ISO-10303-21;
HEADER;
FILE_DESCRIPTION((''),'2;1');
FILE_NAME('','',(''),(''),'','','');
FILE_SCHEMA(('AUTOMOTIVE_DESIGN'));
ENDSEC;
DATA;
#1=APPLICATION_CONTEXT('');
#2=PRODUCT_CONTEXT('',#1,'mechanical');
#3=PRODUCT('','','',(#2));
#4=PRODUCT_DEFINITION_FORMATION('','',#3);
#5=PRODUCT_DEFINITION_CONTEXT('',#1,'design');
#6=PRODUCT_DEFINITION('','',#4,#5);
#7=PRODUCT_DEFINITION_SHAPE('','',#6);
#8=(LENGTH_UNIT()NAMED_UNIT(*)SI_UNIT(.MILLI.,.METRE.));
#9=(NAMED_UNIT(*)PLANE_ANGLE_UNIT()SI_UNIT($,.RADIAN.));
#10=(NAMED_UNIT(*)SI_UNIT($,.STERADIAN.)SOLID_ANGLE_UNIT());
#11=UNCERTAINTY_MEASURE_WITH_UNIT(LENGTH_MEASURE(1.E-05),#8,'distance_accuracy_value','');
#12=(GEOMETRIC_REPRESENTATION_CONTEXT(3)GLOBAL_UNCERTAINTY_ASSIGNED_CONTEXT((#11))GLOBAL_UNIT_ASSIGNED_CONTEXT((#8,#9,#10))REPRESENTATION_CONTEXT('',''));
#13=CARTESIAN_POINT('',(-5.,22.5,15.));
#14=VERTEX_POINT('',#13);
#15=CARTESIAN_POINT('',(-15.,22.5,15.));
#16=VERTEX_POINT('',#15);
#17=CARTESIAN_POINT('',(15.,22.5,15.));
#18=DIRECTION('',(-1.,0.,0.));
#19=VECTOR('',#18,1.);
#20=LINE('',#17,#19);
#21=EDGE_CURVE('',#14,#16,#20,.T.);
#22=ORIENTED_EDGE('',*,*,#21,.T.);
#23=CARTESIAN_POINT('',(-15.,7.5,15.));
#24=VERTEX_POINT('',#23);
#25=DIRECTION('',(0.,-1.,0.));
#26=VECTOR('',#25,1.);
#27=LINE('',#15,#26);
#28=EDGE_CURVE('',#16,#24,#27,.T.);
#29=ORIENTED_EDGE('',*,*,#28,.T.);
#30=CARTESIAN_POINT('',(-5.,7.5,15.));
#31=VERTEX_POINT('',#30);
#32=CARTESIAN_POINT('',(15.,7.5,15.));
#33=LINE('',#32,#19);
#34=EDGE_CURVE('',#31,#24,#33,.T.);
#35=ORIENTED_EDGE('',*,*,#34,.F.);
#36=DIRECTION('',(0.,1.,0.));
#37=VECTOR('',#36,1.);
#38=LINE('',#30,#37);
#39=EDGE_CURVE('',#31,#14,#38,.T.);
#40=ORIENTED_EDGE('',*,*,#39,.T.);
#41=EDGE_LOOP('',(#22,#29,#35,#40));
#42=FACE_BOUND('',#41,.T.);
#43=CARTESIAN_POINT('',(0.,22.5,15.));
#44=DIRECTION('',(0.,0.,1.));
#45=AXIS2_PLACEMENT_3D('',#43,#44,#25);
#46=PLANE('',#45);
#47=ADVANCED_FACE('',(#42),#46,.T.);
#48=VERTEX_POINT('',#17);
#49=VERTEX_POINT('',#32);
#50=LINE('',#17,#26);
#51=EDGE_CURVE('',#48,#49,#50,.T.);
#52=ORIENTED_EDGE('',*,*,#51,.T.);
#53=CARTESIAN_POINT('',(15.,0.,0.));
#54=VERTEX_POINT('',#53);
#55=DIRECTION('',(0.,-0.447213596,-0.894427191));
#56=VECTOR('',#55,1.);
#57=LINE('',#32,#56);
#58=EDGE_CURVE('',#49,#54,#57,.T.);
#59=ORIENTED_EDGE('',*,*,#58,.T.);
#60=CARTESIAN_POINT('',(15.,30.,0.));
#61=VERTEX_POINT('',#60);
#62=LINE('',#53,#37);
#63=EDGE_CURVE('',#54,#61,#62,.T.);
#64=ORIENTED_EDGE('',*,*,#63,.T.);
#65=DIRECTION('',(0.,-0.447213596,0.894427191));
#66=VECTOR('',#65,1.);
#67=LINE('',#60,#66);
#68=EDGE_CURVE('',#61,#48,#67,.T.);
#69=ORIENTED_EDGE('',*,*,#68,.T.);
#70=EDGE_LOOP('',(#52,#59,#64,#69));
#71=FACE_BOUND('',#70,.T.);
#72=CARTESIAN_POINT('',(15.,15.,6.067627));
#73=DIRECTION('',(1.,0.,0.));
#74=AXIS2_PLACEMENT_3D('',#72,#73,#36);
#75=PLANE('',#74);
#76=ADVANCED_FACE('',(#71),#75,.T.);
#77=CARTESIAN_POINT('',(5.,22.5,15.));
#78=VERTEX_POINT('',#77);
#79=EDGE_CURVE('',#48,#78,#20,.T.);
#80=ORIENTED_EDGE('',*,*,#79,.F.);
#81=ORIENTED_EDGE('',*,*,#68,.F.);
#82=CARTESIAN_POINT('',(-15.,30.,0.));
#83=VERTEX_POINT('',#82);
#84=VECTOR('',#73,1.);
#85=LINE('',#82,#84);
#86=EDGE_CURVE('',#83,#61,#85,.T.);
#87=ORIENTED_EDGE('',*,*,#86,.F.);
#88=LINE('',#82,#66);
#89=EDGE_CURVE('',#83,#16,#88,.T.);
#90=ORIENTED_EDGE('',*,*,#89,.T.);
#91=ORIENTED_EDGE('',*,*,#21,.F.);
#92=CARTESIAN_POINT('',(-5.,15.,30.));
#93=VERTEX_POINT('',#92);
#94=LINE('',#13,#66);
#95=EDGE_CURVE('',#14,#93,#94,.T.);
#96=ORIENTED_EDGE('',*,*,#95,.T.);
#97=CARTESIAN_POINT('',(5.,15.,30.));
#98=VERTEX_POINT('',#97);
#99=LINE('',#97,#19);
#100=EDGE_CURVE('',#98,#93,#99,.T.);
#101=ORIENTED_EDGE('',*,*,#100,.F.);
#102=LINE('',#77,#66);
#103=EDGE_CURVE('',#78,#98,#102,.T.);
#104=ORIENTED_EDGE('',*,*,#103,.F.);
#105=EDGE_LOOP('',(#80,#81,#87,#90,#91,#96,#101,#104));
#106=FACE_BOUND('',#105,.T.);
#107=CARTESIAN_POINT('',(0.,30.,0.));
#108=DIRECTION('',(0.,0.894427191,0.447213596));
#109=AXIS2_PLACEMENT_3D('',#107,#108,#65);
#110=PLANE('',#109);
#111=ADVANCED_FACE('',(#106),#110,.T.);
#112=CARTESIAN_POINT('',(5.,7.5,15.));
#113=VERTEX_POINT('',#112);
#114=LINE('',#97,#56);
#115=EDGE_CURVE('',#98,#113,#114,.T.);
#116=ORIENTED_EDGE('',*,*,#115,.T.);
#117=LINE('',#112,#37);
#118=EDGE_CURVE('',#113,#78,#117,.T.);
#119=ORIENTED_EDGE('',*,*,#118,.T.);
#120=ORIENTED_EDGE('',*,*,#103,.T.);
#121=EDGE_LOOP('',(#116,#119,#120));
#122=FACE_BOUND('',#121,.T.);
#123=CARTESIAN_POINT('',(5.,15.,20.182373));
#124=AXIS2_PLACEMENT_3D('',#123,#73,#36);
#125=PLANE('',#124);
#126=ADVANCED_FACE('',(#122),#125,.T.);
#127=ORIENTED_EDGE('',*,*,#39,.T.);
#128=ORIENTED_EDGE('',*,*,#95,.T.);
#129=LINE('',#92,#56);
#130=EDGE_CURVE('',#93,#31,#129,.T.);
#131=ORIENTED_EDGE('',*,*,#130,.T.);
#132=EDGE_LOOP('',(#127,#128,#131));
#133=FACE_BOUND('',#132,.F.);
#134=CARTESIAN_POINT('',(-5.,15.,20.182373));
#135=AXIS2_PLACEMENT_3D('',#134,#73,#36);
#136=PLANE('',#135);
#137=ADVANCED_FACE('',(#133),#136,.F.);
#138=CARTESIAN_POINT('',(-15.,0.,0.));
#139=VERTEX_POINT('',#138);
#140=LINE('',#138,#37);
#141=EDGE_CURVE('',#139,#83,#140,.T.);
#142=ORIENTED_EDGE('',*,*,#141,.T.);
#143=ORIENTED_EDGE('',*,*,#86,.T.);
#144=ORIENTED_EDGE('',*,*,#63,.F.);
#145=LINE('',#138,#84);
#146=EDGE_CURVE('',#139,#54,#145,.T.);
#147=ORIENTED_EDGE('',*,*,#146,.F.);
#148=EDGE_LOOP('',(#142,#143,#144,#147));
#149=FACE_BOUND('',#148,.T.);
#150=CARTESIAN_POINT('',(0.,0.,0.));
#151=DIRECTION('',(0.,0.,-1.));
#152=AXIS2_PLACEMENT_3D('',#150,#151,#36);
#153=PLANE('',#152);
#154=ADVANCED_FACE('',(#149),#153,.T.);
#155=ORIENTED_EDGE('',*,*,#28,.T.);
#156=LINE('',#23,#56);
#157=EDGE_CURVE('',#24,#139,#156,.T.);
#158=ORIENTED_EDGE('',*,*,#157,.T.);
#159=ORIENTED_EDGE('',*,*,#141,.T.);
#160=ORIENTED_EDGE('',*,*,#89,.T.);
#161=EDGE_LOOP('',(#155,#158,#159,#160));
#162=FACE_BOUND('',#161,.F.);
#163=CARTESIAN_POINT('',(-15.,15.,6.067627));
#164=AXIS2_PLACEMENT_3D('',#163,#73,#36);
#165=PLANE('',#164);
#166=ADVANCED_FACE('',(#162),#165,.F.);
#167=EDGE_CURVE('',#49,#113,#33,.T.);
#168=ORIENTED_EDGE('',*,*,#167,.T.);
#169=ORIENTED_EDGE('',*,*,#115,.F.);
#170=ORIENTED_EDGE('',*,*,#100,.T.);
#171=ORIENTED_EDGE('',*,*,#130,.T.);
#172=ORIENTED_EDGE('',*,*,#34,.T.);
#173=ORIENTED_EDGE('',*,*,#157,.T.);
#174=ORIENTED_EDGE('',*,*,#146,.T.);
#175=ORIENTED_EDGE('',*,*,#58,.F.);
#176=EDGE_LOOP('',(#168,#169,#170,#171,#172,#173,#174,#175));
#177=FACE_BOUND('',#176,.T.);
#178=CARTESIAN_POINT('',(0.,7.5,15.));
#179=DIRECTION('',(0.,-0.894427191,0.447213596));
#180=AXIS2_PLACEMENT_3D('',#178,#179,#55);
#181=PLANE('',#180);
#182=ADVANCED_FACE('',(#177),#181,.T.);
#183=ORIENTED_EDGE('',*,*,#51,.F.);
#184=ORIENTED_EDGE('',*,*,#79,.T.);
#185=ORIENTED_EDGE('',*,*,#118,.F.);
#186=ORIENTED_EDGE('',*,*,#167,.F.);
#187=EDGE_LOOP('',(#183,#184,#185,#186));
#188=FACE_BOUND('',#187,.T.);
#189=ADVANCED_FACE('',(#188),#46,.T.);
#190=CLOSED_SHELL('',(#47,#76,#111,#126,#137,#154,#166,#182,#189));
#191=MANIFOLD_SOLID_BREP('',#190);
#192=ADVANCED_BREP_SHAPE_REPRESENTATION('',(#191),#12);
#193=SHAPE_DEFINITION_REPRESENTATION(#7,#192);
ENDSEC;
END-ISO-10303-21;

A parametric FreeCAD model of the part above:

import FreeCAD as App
import Part
import Sketcher

V = App.Vector
Q = App.Units.Quantity

doc = App.newDocument("Part")
params = doc.addObject("Spreadsheet::Sheet", "Params")
for row, (alias, value) in enumerate([
    ("sketch1_width", "30 mm"),
    ("sketch1_width2", "15 mm"),
    ("pad1_length", "30 mm"),
    ("sketch2_width", "15 mm"),
    ("pad2_length", "10 mm"),
], start=1):
    params.set(f"A{row}", alias)
    params.set(f"B{row}", "=" + value)
    params.setAlias(f"B{row}", alias)

body = doc.addObject("PartDesign::Body", "Body")

# Sketch on YZ plane
sketch1 = doc.addObject("Sketcher::SketchObject", "Sketch")
body.addObject(sketch1)
sketch1.AttachmentSupport = (doc.YZ_Plane, [""])
sketch1.MapMode = "FlatFace"
sketch1.addGeometry(Part.LineSegment(V(8, 15, 0), V(0, 0, 0)), False)
sketch1.addGeometry(Part.LineSegment(V(0, 0, 0), V(30, 0, 0)), False)
sketch1.addGeometry(Part.LineSegment(V(30, 0, 0), V(22, 15, 0)), False)
sketch1.addGeometry(Part.LineSegment(V(22, 15, 0), V(8, 15, 0)), False)
sketch1.addConstraint(Sketcher.Constraint("Coincident", 0, 2, 1, 1))
sketch1.addConstraint(Sketcher.Constraint("Coincident", 1, 2, 2, 1))
sketch1.addConstraint(Sketcher.Constraint("Coincident", 2, 2, 3, 1))
sketch1.addConstraint(Sketcher.Constraint("Coincident", 3, 2, 0, 1))
sketch1.addConstraint(Sketcher.Constraint("Horizontal", 1))
sketch1.addConstraint(Sketcher.Constraint("Horizontal", 3))
sketch1.addConstraint(Sketcher.Constraint("Coincident", 0, 2, -1, 1))
sketch1.addConstraint(Sketcher.Constraint("Equal", 0, 2))
sketch1.addConstraint(Sketcher.Constraint("DistanceX", 1, 1, 1, 2, Q("30 mm")))
sketch1.addConstraint(Sketcher.Constraint("DistanceX", 3, 2, 3, 1, Q("15 mm")))
sketch1.addConstraint(Sketcher.Constraint("DistanceY", -1, 1, 2, 2, Q("15 mm")))
sketch1.setExpression("Constraints[8]", "Params.sketch1_width")
sketch1.setExpression("Constraints[9]", "Params.sketch1_width2")
pad1 = doc.addObject("PartDesign::Pad", "Pad")
body.addObject(pad1)
pad1.Profile = sketch1
pad1.setExpression("Length", "Params.pad1_length")
pad1.Midplane = True

# Sketch on YZ plane
sketch2 = doc.addObject("Sketcher::SketchObject", "Sketch001")
body.addObject(sketch2)
sketch2.AttachmentSupport = (doc.YZ_Plane, [""])
sketch2.MapMode = "FlatFace"
sketch2.addGeometry(Part.LineSegment(V(15, 30, 0), V(8, 15, 0)), False)
sketch2.addGeometry(Part.LineSegment(V(8, 15, 0), V(22, 15, 0)), False)
sketch2.addGeometry(Part.LineSegment(V(22, 15, 0), V(15, 30, 0)), False)
sketch2.addConstraint(Sketcher.Constraint("Coincident", 0, 2, 1, 1))
sketch2.addConstraint(Sketcher.Constraint("Coincident", 1, 2, 2, 1))
sketch2.addConstraint(Sketcher.Constraint("Coincident", 2, 2, 0, 1))
sketch2.addConstraint(Sketcher.Constraint("Horizontal", 1))
sketch2.addConstraint(Sketcher.Constraint("Equal", 0, 2))
sketch2.addConstraint(Sketcher.Constraint("DistanceX", 1, 1, 1, 2, Q("15 mm")))
sketch2.addConstraint(Sketcher.Constraint("DistanceY", -1, 1, 0, 2, Q("15 mm")))
sketch2.addConstraint(Sketcher.Constraint("DistanceX", -1, 1, 2, 2, Q("15 mm")))
sketch2.addConstraint(Sketcher.Constraint("DistanceY", -1, 1, 2, 2, Q("30 mm")))
sketch2.setExpression("Constraints[5]", "Params.sketch2_width")
pad2 = doc.addObject("PartDesign::Pad", "Pad001")
body.addObject(pad2)
pad2.Profile = sketch2
pad2.setExpression("Length", "Params.pad2_length")
pad2.Midplane = True

doc.recompute()
